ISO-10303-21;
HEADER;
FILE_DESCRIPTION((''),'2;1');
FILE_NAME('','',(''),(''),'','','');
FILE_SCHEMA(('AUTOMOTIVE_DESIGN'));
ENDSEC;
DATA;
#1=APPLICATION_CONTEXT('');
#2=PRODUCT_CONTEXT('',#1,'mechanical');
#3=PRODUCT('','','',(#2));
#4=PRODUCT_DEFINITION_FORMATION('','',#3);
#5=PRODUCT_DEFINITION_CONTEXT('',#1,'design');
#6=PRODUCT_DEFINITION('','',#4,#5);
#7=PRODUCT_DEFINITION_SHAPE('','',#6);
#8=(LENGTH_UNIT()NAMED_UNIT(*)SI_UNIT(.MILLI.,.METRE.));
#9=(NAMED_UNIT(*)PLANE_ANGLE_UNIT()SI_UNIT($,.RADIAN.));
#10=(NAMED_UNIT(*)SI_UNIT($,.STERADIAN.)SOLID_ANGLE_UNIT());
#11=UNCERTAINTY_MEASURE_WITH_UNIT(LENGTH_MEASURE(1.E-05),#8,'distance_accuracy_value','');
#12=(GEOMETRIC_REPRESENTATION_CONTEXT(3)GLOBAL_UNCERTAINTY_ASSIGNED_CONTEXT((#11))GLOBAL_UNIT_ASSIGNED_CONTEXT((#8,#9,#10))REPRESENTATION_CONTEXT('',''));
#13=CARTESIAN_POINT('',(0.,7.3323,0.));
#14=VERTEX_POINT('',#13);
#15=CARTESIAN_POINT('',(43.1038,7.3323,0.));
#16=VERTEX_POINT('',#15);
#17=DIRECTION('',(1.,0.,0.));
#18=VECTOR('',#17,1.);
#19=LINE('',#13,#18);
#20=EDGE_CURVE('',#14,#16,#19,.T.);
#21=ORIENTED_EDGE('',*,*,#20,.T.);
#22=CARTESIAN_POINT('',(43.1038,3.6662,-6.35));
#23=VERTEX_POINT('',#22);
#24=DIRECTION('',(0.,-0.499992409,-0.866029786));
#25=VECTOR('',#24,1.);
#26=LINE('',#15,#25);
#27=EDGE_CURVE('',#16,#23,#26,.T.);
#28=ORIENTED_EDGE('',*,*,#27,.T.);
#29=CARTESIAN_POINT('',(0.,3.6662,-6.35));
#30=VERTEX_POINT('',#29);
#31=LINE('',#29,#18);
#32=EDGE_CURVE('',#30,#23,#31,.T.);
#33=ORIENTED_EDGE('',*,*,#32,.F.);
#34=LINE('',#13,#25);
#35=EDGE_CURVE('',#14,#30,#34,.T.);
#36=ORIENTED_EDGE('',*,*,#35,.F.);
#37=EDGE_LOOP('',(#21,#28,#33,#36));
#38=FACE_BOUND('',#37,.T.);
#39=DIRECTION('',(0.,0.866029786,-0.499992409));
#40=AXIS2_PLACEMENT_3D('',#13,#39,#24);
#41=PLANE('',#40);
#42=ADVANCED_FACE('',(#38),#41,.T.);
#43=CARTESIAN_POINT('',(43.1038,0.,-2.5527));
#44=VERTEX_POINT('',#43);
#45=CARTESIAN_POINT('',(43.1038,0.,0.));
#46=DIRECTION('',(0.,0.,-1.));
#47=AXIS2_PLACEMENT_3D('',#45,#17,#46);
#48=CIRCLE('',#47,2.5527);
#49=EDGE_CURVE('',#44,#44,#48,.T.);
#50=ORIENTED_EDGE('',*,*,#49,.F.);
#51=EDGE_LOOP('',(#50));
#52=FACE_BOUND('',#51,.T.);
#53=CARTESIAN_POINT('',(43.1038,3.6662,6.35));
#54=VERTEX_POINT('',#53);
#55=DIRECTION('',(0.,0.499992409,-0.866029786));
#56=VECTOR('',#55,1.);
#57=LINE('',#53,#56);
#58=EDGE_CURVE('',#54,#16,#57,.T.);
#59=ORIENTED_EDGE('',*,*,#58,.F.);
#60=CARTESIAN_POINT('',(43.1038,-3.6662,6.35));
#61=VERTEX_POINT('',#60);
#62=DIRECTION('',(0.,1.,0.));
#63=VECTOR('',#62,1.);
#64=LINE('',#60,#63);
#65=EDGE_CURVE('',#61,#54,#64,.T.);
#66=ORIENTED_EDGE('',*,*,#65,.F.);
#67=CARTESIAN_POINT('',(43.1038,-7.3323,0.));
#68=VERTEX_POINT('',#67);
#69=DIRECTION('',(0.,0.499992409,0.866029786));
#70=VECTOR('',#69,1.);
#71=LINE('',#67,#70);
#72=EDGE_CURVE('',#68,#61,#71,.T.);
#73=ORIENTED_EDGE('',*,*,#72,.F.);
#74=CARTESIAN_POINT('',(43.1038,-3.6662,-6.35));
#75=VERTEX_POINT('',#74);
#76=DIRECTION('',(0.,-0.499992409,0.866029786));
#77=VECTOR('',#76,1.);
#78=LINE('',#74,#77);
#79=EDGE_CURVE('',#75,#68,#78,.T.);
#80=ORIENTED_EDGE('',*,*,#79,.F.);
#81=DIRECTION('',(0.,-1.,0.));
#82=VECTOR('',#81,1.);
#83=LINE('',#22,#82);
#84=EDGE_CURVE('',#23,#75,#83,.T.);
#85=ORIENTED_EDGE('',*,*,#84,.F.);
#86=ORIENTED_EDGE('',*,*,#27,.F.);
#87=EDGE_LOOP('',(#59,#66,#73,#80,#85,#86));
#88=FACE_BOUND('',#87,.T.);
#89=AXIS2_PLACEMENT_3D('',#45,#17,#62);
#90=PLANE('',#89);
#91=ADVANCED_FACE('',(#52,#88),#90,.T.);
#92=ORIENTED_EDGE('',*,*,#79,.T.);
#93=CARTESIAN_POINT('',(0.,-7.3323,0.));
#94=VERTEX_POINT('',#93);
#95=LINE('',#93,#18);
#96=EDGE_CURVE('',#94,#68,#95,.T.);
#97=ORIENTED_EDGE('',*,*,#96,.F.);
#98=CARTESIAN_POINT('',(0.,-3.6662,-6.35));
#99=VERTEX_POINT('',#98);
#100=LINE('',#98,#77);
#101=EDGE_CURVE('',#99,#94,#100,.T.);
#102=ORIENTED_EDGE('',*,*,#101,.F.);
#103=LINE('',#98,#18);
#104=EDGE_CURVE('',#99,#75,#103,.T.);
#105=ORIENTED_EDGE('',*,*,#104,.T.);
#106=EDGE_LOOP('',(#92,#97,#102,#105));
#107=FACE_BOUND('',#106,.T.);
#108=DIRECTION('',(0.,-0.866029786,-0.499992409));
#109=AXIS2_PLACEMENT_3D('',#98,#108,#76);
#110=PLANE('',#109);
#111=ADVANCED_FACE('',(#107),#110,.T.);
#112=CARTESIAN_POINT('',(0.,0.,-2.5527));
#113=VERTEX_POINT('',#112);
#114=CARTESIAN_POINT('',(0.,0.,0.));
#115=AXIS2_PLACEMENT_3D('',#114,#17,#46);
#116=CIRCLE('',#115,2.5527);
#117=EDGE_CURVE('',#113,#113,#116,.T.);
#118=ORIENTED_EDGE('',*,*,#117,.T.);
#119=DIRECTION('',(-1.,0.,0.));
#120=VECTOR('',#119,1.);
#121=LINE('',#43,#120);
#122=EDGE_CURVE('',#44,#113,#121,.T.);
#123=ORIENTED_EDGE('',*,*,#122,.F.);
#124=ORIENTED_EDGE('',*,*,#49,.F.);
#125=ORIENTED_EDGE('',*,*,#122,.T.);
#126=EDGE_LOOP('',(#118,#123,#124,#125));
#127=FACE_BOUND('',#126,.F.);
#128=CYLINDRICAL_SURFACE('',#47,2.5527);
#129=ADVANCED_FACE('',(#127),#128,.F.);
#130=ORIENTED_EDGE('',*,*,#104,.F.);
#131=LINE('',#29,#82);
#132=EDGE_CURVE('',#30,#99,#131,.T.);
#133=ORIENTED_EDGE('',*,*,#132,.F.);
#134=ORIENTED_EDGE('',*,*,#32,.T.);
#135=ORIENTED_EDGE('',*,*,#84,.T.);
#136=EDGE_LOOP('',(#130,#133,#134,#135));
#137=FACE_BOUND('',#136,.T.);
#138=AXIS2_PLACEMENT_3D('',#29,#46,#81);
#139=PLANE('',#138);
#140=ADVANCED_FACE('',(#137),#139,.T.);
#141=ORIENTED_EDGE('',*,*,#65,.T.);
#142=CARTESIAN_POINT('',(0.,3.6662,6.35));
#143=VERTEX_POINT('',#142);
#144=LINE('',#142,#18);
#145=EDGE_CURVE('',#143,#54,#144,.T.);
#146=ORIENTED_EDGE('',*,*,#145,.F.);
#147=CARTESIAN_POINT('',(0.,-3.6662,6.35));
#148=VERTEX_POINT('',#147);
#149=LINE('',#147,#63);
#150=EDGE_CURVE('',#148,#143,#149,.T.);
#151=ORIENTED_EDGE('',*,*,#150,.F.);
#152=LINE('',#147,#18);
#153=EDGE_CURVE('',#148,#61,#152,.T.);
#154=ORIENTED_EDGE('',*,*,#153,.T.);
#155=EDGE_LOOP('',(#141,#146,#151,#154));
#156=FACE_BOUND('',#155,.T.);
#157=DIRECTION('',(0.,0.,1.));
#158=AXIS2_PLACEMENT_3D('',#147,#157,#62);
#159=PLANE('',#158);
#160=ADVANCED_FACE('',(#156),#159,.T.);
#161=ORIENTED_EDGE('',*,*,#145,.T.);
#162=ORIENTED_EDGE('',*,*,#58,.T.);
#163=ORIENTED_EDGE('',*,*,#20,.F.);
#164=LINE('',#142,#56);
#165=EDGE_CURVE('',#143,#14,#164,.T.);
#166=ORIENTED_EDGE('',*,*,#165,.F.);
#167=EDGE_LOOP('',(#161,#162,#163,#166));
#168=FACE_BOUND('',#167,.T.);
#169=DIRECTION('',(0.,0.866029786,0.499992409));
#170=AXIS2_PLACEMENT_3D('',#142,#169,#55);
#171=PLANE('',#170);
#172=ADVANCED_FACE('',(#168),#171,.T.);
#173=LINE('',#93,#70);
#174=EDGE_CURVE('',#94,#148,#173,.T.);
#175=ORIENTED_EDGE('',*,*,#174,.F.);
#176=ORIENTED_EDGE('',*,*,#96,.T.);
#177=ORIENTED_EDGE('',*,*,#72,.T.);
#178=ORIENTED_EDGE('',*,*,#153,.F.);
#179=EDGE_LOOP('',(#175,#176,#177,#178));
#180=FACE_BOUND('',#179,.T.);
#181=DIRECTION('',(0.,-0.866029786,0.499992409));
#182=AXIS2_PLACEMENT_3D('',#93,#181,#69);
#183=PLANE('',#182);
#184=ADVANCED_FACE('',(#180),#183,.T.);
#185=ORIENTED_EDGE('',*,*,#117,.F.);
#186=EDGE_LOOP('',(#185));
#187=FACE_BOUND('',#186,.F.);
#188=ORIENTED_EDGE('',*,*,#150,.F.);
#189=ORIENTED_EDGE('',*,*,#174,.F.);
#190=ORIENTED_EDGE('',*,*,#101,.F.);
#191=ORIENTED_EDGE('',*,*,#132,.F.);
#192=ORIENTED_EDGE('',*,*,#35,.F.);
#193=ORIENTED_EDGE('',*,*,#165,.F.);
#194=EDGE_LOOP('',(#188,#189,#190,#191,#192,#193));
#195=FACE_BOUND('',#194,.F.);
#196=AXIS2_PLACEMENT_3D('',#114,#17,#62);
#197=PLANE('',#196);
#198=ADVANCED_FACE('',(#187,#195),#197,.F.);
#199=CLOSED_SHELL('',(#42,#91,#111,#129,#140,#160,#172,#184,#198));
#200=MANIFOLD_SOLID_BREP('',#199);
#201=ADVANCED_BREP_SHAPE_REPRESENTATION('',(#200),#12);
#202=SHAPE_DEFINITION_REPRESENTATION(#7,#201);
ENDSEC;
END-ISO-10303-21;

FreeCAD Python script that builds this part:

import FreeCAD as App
import Part
import Sketcher

V = App.Vector
Q = App.Units.Quantity


def add_polygon(sketch, points):
    """Adds a closed chain of lines whose ends are joined by coincident constraints."""
    first, n = sketch.GeometryCount, len(points)
    for a, b in zip(points, points[1:] + points[:1]):
        sketch.addGeometry(Part.LineSegment(App.Vector(*a, 0), App.Vector(*b, 0)), False)
    for i in range(n):
        sketch.addConstraint(Sketcher.Constraint("Coincident", first + i, 2, first + (i + 1) % n, 1))

doc = App.newDocument("Part")
body = doc.addObject("PartDesign::Body", "Body")

# Sketch on YZ plane
sketch1 = doc.addObject("Sketcher::SketchObject", "Sketch")
body.addObject(sketch1)
sketch1.AttachmentSupport = (doc.YZ_Plane, [""])
sketch1.MapMode = "FlatFace"
add_polygon(sketch1, [(-7, 0), (-4, -6), (4, -6), (7, 0), (4, 6), (-4, 6)])  # lines 0-5
sketch1.addConstraint(Sketcher.Constraint("Horizontal", 1))
sketch1.addConstraint(Sketcher.Constraint("Horizontal", 4))
sketch1.addConstraint(Sketcher.Constraint("Symmetric", 0, 2, 3, 2, -1, 1))
sketch1.addConstraint(Sketcher.Constraint("Symmetric", 2, 2, 5, 2, -1, 1))
sketch1.addConstraint(Sketcher.Constraint("PointOnObject", 2, 2, -1))
sketch1.addConstraint(Sketcher.Constraint("Parallel", 2, 5))
sketch1.addConstraint(Sketcher.Constraint("Vertical", 1, 2, 3, 2))
sketch1.addConstraint(Sketcher.Constraint("DistanceY", 1, 2, 3, 2, Q("0.5 in")))
sketch1.addConstraint(Sketcher.Constraint("Angle", 0, Q("-60.0005 deg")))
sketch1.addConstraint(Sketcher.Constraint("DistanceX", 0, 2, 2, 2, Q("0.433 in")))
pad1 = doc.addObject("PartDesign::Pad", "Pad")
body.addObject(pad1)
pad1.Profile = sketch1
pad1.Length = Q("1.697 in")

# Sketch on YZ plane
sketch2 = doc.addObject("Sketcher::SketchObject", "Sketch001")
body.addObject(sketch2)
sketch2.AttachmentSupport = (doc.YZ_Plane, [""])
sketch2.MapMode = "FlatFace"
sketch2.AttachmentOffset = App.Placement(V(0, 0, 1.697 * 25.4), App.Rotation())
sketch2.addGeometry(Part.Circle(V(0, 0, 0), V(0, 0, 1), 2.6), False)
sketch2.addConstraint(Sketcher.Constraint("Coincident", 0, 3, -1, 1))
sketch2.addConstraint(Sketcher.Constraint("Diameter", 0, Q("0.201 in")))
pocket1 = doc.addObject("PartDesign::Pocket", "Pocket")
body.addObject(pocket1)
pocket1.Profile = sketch2
pocket1.Length = Q("1.697 in")

doc.recompute()
